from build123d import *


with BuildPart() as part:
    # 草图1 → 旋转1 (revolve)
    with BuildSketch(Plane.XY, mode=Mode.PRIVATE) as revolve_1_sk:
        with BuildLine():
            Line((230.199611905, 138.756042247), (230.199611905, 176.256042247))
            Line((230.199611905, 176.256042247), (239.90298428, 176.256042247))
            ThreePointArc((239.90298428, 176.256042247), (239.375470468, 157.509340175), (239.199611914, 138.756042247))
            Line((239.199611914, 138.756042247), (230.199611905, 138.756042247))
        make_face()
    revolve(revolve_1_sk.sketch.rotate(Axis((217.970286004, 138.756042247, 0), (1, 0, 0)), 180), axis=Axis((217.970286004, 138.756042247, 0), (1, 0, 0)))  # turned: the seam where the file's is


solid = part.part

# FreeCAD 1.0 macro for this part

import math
import FreeCAD as App
import Part
import Sketcher

V = App.Vector
Q = App.Units.Quantity

doc = App.newDocument("Part")
params = doc.addObject("Spreadsheet::Sheet", "Params")
for row, (alias, value) in enumerate([
    ("sketch1_width", "9 mm"),
    ("sketch1_height", "37.5 mm"),
    ("revolution_angle", "360 deg"),
], start=1):
    params.set(f"A{row}", alias)
    params.set(f"B{row}", "=" + value)
    params.setAlias(f"B{row}", alias)

body = doc.addObject("PartDesign::Body", "Body")

sketch1 = doc.addObject("Sketcher::SketchObject", "Sketch")
body.addObject(sketch1)
sketch1.AttachmentSupport = (doc.XY_Plane, [""])
sketch1.MapMode = "FlatFace"
sketch1.addGeometry([
    Part.LineSegment(V(230, 176, 0), V(230, 139, 0)),
    Part.LineSegment(V(230, 139, 0), V(239, 139, 0)),
    Part.ArcOfCircle(Part.Circle(V(1239, 139, 0), V(0, 0, 1), 1000), math.radians(177.85), math.radians(180)),
    Part.LineSegment(V(240, 176, 0), V(230, 176, 0)),
], False)
sketch1.addGeometry(Part.LineSegment(V(230, 139, 0), V(1239, 139, 0)), True)
sketch1.addConstraint([
    Sketcher.Constraint("Coincident", 0, 2, 1, 1),
    Sketcher.Constraint("Coincident", 1, 2, 2, 2),
    Sketcher.Constraint("Coincident", 2, 1, 3, 1),
    Sketcher.Constraint("Coincident", 3, 2, 0, 1),
    Sketcher.Constraint("Vertical", 0),
    Sketcher.Constraint("Horizontal", 1),
    Sketcher.Constraint("Horizontal", 3),
    Sketcher.Constraint("Horizontal", 4),
    Sketcher.Constraint("Coincident", 4, 1, 0, 2),
    Sketcher.Constraint("Coincident", 4, 2, 2, 3),
    Sketcher.Constraint("DistanceX", 1, 1, 1, 2, Q("9 mm")),
    Sketcher.Constraint("DistanceY", 0, 2, 0, 1, Q("37.5 mm")),
    Sketcher.Constraint("Radius", 2, Q("999.999997 mm")),
    Sketcher.Constraint("DistanceX", -1, 1, 2, 3, Q("1239.199609 mm")),
    Sketcher.Constraint("DistanceY", -1, 1, 2, 3, Q("138.756042 mm")),
])
sketch1.setExpression("Constraints[10]", "Params.sketch1_width")
sketch1.setExpression("Constraints[11]", "Params.sketch1_height")
revolution = doc.addObject("PartDesign::Revolution", "Revolution")
body.addObject(revolution)
revolution.Profile = sketch1
revolution.ReferenceAxis = (sketch1, ["Axis0"])
revolution.setExpression("Angle", "Params.revolution_angle")

doc.recompute()
